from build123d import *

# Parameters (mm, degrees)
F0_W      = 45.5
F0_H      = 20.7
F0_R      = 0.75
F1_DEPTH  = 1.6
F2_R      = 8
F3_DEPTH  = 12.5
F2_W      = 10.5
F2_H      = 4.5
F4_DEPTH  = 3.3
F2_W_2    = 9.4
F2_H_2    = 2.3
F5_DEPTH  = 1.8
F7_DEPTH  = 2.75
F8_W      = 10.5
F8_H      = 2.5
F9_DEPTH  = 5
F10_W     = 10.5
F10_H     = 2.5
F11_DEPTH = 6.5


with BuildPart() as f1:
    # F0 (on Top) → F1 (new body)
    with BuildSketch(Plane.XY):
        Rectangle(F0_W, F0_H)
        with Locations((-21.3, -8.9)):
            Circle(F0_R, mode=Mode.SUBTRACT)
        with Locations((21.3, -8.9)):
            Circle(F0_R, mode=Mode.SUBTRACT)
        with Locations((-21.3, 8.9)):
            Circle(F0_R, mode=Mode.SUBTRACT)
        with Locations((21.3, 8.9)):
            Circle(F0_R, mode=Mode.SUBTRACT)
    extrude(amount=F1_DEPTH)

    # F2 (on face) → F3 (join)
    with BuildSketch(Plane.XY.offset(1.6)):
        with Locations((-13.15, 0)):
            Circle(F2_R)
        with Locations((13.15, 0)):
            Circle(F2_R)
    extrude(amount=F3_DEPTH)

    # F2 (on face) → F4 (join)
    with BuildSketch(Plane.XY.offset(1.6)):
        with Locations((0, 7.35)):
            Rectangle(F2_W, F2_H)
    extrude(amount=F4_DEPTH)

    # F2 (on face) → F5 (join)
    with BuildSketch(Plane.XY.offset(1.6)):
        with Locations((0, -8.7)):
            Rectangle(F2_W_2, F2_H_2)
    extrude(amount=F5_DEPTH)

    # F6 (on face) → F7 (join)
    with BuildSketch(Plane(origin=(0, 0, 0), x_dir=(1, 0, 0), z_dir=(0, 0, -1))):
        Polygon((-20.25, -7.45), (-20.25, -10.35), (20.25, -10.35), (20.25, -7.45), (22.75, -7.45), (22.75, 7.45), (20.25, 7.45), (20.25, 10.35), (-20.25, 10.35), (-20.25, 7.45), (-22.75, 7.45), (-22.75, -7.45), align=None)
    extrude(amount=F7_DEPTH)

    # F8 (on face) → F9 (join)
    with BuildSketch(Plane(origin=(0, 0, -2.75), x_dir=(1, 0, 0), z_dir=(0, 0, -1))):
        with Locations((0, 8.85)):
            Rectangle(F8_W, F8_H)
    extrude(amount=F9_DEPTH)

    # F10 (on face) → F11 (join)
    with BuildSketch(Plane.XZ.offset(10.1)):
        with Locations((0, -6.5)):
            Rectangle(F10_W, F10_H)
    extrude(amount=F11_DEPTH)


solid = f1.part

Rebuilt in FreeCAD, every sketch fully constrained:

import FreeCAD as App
import Part
import Sketcher
from FreeCAD import Vector


def add_polygon(sketch, points):
    """Adds a closed chain of lines whose ends are joined by coincident constraints."""
    first, n = sketch.GeometryCount, len(points)
    for a, b in zip(points, points[1:] + points[:1]):
        sketch.addGeometry(Part.LineSegment(App.Vector(*a, 0), App.Vector(*b, 0)), False)
    for i in range(n):
        sketch.addConstraint(Sketcher.Constraint("Coincident", first + i, 2, first + (i + 1) % n, 1))

doc = App.newDocument("Part")
body = doc.addObject("PartDesign::Body", "Body")

# Sketch on XY plane
sketch1 = body.newObject("Sketcher::SketchObject", "Sketch")
sketch1.AttachmentSupport = (doc.getObject("XY_Plane"), [""])
sketch1.MapMode = "FlatFace"
add_polygon(sketch1, [(-22.8, 10.3), (-22.8, -10.3), (22.8, -10.3), (22.8, 10.3)])  # lines 0-3
sketch1.addGeometry(Part.Circle(Vector(-21.3, -8.9, 0), Vector(0, 0, 1), 0.8), False)  # 4
sketch1.addGeometry(Part.Circle(Vector(21.3, -8.9, 0), Vector(0, 0, 1), 0.8), False)  # 5
sketch1.addGeometry(Part.Circle(Vector(-21.3, 8.9, 0), Vector(0, 0, 1), 0.8), False)  # 6
sketch1.addGeometry(Part.Circle(Vector(21.3, 8.9, 0), Vector(0, 0, 1), 0.8), False)  # 7
sketch1.addConstraint(Sketcher.Constraint("Vertical", 0))
sketch1.addConstraint(Sketcher.Constraint("Horizontal", 1))
sketch1.addConstraint(Sketcher.Constraint("Vertical", 2))
sketch1.addConstraint(Sketcher.Constraint("Horizontal", 3))
sketch1.addConstraint(Sketcher.Constraint("Equal", 4, 5))
sketch1.addConstraint(Sketcher.Constraint("Equal", 5, 6))
sketch1.addConstraint(Sketcher.Constraint("Equal", 6, 7))
sketch1.addConstraint(Sketcher.Constraint("Symmetric", 5, 3, 6, 3, -1, 1))
sketch1.addConstraint(Sketcher.Constraint("Symmetric", 4, 3, 7, 3, -1, 1))
sketch1.addConstraint(Sketcher.Constraint("Symmetric", 0, 2, 2, 2, -1, 1))
sketch1.addConstraint(Sketcher.Constraint("Symmetric", 4, 3, 5, 3, -2))
sketch1.addConstraint(Sketcher.Constraint("Diameter", 4, 1.5))
sketch1.addConstraint(Sketcher.Constraint("DistanceX", 1, 1, 1, 2, 45.5))
sketch1.addConstraint(Sketcher.Constraint("DistanceY", 0, 2, 0, 1, 20.7))
sketch1.addConstraint(Sketcher.Constraint("DistanceX", 4, 3, -1, 1, 21.3))
sketch1.addConstraint(Sketcher.Constraint("DistanceY", 4, 3, -1, 1, 8.9))
pad1 = body.newObject("PartDesign::Pad", "Pad")
pad1.Profile = sketch1
pad1.Length = 1.6

# Sketch on XY plane
sketch2 = body.newObject("Sketcher::SketchObject", "Sketch001")
sketch2.AttachmentSupport = (doc.getObject("XY_Plane"), [""])
sketch2.MapMode = "FlatFace"
sketch2.AttachmentOffset = App.Placement(Vector(0, 0, 1.6), App.Rotation())
sketch2.addGeometry(Part.Circle(Vector(-13, 0, 0), Vector(0, 0, 1), 8), False)
sketch2.addGeometry(Part.Circle(Vector(13, 0, 0), Vector(0, 0, 1), 8), False)
sketch2.addConstraint(Sketcher.Constraint("Equal", 0, 1))
sketch2.addConstraint(Sketcher.Constraint("Symmetric", 0, 3, 1, 3, -1, 1))
sketch2.addConstraint(Sketcher.Constraint("PointOnObject", 0, 3, -1))
sketch2.addConstraint(Sketcher.Constraint("Diameter", 0, 16.0))
sketch2.addConstraint(Sketcher.Constraint("DistanceX", 0, 3, 1, 3, 26.3))
pad2 = body.newObject("PartDesign::Pad", "Pad001")
pad2.Profile = sketch2
pad2.Length = 12.5

# Sketch on XY plane
sketch3 = body.newObject("Sketcher::SketchObject", "Sketch002")
sketch3.AttachmentSupport = (doc.getObject("XY_Plane"), [""])
sketch3.MapMode = "FlatFace"
sketch3.AttachmentOffset = App.Placement(Vector(0, 0, 1.6), App.Rotation())
add_polygon(sketch3, [(-5.2, 9.6), (-5.2, 5.1), (5.2, 5.1), (5.2, 9.6)])  # lines 0-3
sketch3.addConstraint(Sketcher.Constraint("Vertical", 0))
sketch3.addConstraint(Sketcher.Constraint("Horizontal", 1))
sketch3.addConstraint(Sketcher.Constraint("Vertical", 2))
sketch3.addConstraint(Sketcher.Constraint("Horizontal", 3))
sketch3.addConstraint(Sketcher.Constraint("DistanceX", 1, 1, 1, 2, 10.5))
sketch3.addConstraint(Sketcher.Constraint("DistanceY", 0, 2, 0, 1, 4.5))
sketch3.addConstraint(Sketcher.Constraint("DistanceY", -1, 1, 0, 2, 5.1))
sketch3.addConstraint(Sketcher.Constraint("DistanceX", 0, 2, -1, 1, 5.25))
pad3 = body.newObject("PartDesign::Pad", "Pad002")
pad3.Profile = sketch3
pad3.Length = 3.3

# Sketch on XY plane
sketch4 = body.newObject("Sketcher::SketchObject", "Sketch003")
sketch4.AttachmentSupport = (doc.getObject("XY_Plane"), [""])
sketch4.MapMode = "FlatFace"
sketch4.AttachmentOffset = App.Placement(Vector(0, 0, 1.6), App.Rotation())
add_polygon(sketch4, [(-4.7, -7.5), (-4.7, -9.8), (4.7, -9.8), (4.7, -7.5)])  # lines 0-3
sketch4.addConstraint(Sketcher.Constraint("Vertical", 0))
sketch4.addConstraint(Sketcher.Constraint("Horizontal", 1))
sketch4.addConstraint(Sketcher.Constraint("Vertical", 2))
sketch4.addConstraint(Sketcher.Constraint("Horizontal", 3))
sketch4.addConstraint(Sketcher.Constraint("DistanceX", 1, 1, 1, 2, 9.4))
sketch4.addConstraint(Sketcher.Constraint("DistanceY", 0, 2, 0, 1, 2.3))
sketch4.addConstraint(Sketcher.Constraint("DistanceX", 0, 2, -1, 1, 4.7))
sketch4.addConstraint(Sketcher.Constraint("DistanceY", 0, 2, -1, 1, 9.85))
pad4 = body.newObject("PartDesign::Pad", "Pad003")
pad4.Profile = sketch4
pad4.Length = 1.8

# Sketch on XY plane
sketch5 = body.newObject("Sketcher::SketchObject", "Sketch004")
sketch5.AttachmentSupport = (doc.getObject("XY_Plane"), [""])
sketch5.MapMode = "FlatFace"
add_polygon(sketch5, [(-20.2, 7.5), (-20.2, 10.3), (20.2, 10.3), (20.2, 7.5), (22.8, 7.5), (22.8, -7.5), (20.2, -7.5), (20.2, -10.3), (-20.2, -10.3), (-20.2, -7.5), (-22.8, -7.5), (-22.8, 7.5)])  # lines 0-11
sketch5.addConstraint(Sketcher.Constraint("Vertical", 0))
sketch5.addConstraint(Sketcher.Constraint("Horizontal", 1))
sketch5.addConstraint(Sketcher.Constraint("Vertical", 2))
sketch5.addConstraint(Sketcher.Constraint("Horizontal", 3))
sketch5.addConstraint(Sketcher.Constraint("Vertical", 4))
sketch5.addConstraint(Sketcher.Constraint("Horizontal", 5))
sketch5.addConstraint(Sketcher.Constraint("Vertical", 6))
sketch5.addConstraint(Sketcher.Constraint("Horizontal", 7))
sketch5.addConstraint(Sketcher.Constraint("Vertical", 8))
sketch5.addConstraint(Sketcher.Constraint("Horizontal", 9))
sketch5.addConstraint(Sketcher.Constraint("Vertical", 10))
sketch5.addConstraint(Sketcher.Constraint("Horizontal", 11))
sketch5.addConstraint(Sketcher.Constraint("Symmetric", 0, 2, 6, 2, -1, 1))
sketch5.addConstraint(Sketcher.Constraint("Symmetric", 2, 2, 8, 2, -1, 1))
sketch5.addConstraint(Sketcher.Constraint("Symmetric", 4, 2, 10, 2, -1, 1))
sketch5.addConstraint(Sketcher.Constraint("Symmetric", 5, 2, 8, 2, -2))
sketch5.addConstraint(Sketcher.Constraint("DistanceX", 1, 1, 1, 2, 40.5))
sketch5.addConstraint(Sketcher.Constraint("DistanceX", 3, 1, 3, 2, 2.5))
sketch5.addConstraint(Sketcher.Constraint("DistanceY", 0, 1, 0, 2, 2.9))
sketch5.addConstraint(Sketcher.Constraint("DistanceY", 4, 2, 4, 1, 14.9))
pad5 = body.newObject("PartDesign::Pad", "Pad004")
pad5.Profile = sketch5
pad5.Length = 2.75
pad5.Reversed = True

# Sketch on XY plane
sketch6 = body.newObject("Sketcher::SketchObject", "Sketch005")
sketch6.AttachmentSupport = (doc.getObject("XY_Plane"), [""])
sketch6.MapMode = "FlatFace"
sketch6.AttachmentOffset = App.Placement(Vector(0, 0, -2.75), App.Rotation())
add_polygon(sketch6, [(-5.2, -10.1), (-5.2, -7.6), (5.2, -7.6), (5.2, -10.1)])  # lines 0-3
sketch6.addConstraint(Sketcher.Constraint("Vertical", 0))
sketch6.addConstraint(Sketcher.Constraint("Horizontal", 1))
sketch6.addConstraint(Sketcher.Constraint("Vertical", 2))
sketch6.addConstraint(Sketcher.Constraint("Horizontal", 3))
sketch6.addConstraint(Sketcher.Constraint("DistanceX", 1, 1, 1, 2, 10.5))
sketch6.addConstraint(Sketcher.Constraint("DistanceY", 0, 1, 0, 2, 2.5))
sketch6.addConstraint(Sketcher.Constraint("DistanceY", 0, 2, -1, 1, 7.6))
sketch6.addConstraint(Sketcher.Constraint("DistanceX", 0, 2, -1, 1, 5.25))
pad6 = body.newObject("PartDesign::Pad", "Pad005")
pad6.Profile = sketch6
pad6.Length = 5
pad6.Reversed = True

# Sketch on XZ plane
sketch7 = body.newObject("Sketcher::SketchObject", "Sketch006")
sketch7.AttachmentSupport = (doc.getObject("XZ_Plane"), [""])
sketch7.MapMode = "FlatFace"
sketch7.AttachmentOffset = App.Placement(Vector(0, 0, 10.1), App.Rotation())
add_polygon(sketch7, [(-5.2, -5.2), (-5.2, -7.8), (5.2, -7.8), (5.2, -5.2)])  # lines 0-3
sketch7.addConstraint(Sketcher.Constraint("Vertical", 0))
sketch7.addConstraint(Sketcher.Constraint("Horizontal", 1))
sketch7.addConstraint(Sketcher.Constraint("Vertical", 2))
sketch7.addConstraint(Sketcher.Constraint("Horizontal", 3))
sketch7.addConstraint(Sketcher.Constraint("DistanceX", 1, 1, 1, 2, 10.5))
sketch7.addConstraint(Sketcher.Constraint("DistanceY", 0, 2, 0, 1, 2.5))
sketch7.addConstraint(Sketcher.Constraint("DistanceX", 0, 2, -1, 1, 5.25))
sketch7.addConstraint(Sketcher.Constraint("DistanceY", 0, 2, -1, 1, 7.75))
pad7 = body.newObject("PartDesign::Pad", "Pad006")
pad7.Profile = sketch7
pad7.Length = 6.5

doc.recompute()
